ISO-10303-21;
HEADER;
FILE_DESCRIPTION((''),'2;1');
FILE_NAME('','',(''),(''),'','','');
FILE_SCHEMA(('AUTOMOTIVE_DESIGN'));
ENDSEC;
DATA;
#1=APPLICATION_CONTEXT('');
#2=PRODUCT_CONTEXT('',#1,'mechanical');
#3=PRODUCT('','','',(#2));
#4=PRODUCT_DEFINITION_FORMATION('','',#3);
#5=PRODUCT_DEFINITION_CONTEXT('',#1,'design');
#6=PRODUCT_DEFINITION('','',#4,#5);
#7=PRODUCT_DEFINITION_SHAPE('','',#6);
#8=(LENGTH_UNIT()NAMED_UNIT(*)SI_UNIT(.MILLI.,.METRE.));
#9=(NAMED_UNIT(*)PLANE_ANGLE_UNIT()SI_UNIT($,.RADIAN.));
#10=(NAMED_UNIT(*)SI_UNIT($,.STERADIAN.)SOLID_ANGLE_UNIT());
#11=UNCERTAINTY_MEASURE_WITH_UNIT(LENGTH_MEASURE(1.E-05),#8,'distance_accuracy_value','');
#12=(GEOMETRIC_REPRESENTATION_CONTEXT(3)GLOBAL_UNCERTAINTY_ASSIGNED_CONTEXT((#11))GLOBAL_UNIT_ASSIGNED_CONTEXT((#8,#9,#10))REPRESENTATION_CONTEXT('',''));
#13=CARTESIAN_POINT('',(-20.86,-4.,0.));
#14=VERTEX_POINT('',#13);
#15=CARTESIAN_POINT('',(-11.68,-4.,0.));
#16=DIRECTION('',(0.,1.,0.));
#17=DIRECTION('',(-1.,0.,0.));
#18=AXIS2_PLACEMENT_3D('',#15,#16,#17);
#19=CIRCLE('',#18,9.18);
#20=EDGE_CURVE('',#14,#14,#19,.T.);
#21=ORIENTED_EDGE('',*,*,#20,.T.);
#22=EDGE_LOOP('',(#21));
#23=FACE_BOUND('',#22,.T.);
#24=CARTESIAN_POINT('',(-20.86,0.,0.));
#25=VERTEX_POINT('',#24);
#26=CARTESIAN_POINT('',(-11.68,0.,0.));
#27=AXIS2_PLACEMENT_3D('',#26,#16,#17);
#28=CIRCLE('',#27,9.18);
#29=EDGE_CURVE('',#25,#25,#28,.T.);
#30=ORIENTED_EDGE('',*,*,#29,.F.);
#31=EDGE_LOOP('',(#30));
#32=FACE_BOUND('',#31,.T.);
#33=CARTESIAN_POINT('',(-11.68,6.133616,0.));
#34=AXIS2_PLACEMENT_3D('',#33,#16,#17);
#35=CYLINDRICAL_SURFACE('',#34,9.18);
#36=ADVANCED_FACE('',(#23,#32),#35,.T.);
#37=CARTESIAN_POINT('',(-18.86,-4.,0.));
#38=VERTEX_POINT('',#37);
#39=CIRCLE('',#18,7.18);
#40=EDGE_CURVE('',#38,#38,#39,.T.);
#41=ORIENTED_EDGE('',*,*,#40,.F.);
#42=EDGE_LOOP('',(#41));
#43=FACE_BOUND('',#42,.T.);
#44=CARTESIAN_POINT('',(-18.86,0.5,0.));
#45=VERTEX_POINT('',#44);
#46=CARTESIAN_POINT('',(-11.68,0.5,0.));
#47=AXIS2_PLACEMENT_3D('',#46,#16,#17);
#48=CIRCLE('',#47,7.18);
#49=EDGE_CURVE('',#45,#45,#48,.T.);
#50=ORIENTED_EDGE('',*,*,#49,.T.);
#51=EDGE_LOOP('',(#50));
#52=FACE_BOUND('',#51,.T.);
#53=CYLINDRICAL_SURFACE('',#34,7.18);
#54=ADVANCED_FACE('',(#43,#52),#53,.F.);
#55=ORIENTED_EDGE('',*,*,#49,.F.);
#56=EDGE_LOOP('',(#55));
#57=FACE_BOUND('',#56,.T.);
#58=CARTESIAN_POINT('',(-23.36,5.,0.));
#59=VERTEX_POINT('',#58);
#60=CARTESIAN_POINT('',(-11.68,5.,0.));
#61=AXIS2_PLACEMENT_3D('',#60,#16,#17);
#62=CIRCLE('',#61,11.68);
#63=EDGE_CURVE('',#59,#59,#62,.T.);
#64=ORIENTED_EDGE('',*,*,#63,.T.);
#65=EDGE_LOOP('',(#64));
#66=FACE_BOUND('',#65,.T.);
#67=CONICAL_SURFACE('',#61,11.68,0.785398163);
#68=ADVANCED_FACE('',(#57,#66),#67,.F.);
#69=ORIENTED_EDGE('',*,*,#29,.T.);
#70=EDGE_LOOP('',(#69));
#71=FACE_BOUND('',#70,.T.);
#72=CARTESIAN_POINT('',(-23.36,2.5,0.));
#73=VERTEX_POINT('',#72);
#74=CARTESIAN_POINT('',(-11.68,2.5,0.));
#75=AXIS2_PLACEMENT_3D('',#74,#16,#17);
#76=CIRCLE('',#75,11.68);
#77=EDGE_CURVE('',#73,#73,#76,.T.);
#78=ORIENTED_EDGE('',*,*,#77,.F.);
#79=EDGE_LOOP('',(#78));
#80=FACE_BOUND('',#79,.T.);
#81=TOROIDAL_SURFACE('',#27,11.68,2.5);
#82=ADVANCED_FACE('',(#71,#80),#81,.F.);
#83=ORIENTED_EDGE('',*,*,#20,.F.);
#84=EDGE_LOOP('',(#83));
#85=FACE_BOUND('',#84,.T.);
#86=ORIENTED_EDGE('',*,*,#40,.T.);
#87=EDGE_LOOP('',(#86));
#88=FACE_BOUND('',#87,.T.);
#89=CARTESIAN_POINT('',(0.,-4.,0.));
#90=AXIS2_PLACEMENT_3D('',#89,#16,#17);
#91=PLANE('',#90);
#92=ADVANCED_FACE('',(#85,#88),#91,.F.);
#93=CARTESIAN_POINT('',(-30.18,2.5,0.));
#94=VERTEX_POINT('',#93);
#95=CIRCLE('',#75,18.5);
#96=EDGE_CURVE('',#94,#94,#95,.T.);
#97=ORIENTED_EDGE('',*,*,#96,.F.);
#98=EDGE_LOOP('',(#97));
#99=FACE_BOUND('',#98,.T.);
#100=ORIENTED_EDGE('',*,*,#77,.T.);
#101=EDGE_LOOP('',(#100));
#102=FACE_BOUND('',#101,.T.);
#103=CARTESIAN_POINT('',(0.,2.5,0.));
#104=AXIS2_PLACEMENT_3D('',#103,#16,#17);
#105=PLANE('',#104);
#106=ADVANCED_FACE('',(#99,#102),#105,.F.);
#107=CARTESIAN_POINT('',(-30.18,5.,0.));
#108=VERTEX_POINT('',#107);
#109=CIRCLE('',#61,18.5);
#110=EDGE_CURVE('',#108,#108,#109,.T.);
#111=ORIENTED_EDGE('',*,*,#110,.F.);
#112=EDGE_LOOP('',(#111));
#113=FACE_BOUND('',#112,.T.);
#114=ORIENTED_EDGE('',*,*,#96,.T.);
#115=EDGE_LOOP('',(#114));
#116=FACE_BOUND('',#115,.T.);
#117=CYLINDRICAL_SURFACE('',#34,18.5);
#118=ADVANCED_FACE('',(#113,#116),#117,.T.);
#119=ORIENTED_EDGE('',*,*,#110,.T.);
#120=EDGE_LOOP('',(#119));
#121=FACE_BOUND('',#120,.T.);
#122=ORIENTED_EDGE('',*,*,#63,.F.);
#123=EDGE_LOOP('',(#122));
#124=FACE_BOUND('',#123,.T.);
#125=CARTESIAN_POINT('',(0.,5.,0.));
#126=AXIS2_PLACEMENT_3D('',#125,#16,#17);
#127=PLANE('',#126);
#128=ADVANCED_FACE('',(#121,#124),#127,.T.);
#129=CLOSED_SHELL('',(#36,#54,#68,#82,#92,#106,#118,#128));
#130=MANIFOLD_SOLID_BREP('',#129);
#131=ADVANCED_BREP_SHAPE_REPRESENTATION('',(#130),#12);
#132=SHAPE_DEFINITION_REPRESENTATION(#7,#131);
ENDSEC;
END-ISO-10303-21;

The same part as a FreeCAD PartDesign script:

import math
import FreeCAD as App
import Part
import Sketcher

V = App.Vector
Q = App.Units.Quantity

doc = App.newDocument("Part")
params = doc.addObject("Spreadsheet::Sheet", "Params")
for row, (alias, value) in enumerate([
    ("sketch1_radius", "2.5 mm"),
    ("sketch1_width", "2 mm"),
    ("sketch1_height", "4 mm"),
    ("sketch1_height2", "9 mm"),
    ("sketch1_width2", "6.82 mm"),
    ("revolution_angle", "360 deg"),
], start=1):
    params.set(f"A{row}", alias)
    params.set(f"B{row}", "=" + value)
    params.setAlias(f"B{row}", alias)

body = doc.addObject("PartDesign::Body", "Body")

sketch1 = doc.addObject("Sketcher::SketchObject", "Sketch")
body.addObject(sketch1)
sketch1.AttachmentSupport = (doc.XY_Plane, [""])
sketch1.MapMode = "FlatFace"
sketch1.addGeometry([
    Part.LineSegment(V(6.8, 5, 0), V(0, 5, 0)),
    Part.LineSegment(V(0, 5, 0), V(-4.5, 0.5, 0)),
    Part.LineSegment(V(-4.5, 0.5, 0), V(-4.5, -4, 0)),
    Part.LineSegment(V(-4.5, -4, 0), V(-2.5, -4, 0)),
    Part.LineSegment(V(-2.5, -4, 0), V(-2.5, 0, 0)),
    Part.ArcOfCircle(Part.Circle(V(0, 0, 0), V(0, 0, 1), 2.5), math.radians(90), math.radians(180)),
    Part.LineSegment(V(0, 2.5, 0), V(6.8, 2.5, 0)),
    Part.LineSegment(V(6.8, 2.5, 0), V(6.8, 5, 0)),
], False)
sketch1.addGeometry(Part.LineSegment(V(-11.7, 5, 0), V(-11.7, -4, 0)), True)
sketch1.addConstraint([
    Sketcher.Constraint("Coincident", 0, 2, 1, 1),
    Sketcher.Constraint("Coincident", 1, 2, 2, 1),
    Sketcher.Constraint("Coincident", 2, 2, 3, 1),
    Sketcher.Constraint("Coincident", 3, 2, 4, 1),
    Sketcher.Constraint("Tangent", 4, 2, 5, 2),
    Sketcher.Constraint("Tangent", 5, 1, 6, 1),
    Sketcher.Constraint("Coincident", 6, 2, 7, 1),
    Sketcher.Constraint("Coincident", 7, 2, 0, 1),
    Sketcher.Constraint("Horizontal", 0),
    Sketcher.Constraint("Vertical", 2),
    Sketcher.Constraint("Horizontal", 3),
    Sketcher.Constraint("Vertical", 4),
    Sketcher.Constraint("Horizontal", 6),
    Sketcher.Constraint("Vertical", 7),
    Sketcher.Constraint("Vertical", 8),
    Sketcher.Constraint("Coincident", 5, 3, -1, 1),
    Sketcher.Constraint("PointOnObject", 0, 2, -2),
    Sketcher.Constraint("Horizontal", 7, 2, 8, 1),
    Sketcher.Constraint("Horizontal", 3, 2, 8, 2),
    Sketcher.Constraint("Radius", 5, Q("2.5 mm")),
    Sketcher.Constraint("DistanceX", 3, 1, 3, 2, Q("2 mm")),
    Sketcher.Constraint("DistanceY", 4, 1, 4, 2, Q("4 mm")),
    Sketcher.Constraint("DistanceY", 8, 2, 8, 1, Q("9 mm")),
    Sketcher.Constraint("Angle", 1, Q("-135 deg")),
    Sketcher.Constraint("DistanceX", 0, 2, 0, 1, Q("6.82 mm")),
    Sketcher.Constraint("DistanceX", 8, 1, -1, 1, Q("11.68 mm")),
])
sketch1.setExpression("Constraints[19]", "Params.sketch1_radius")
sketch1.setExpression("Constraints[20]", "Params.sketch1_width")
sketch1.setExpression("Constraints[21]", "Params.sketch1_height")
sketch1.setExpression("Constraints[22]", "Params.sketch1_height2")
sketch1.setExpression("Constraints[24]", "Params.sketch1_width2")
revolution = doc.addObject("PartDesign::Revolution", "Revolution")
body.addObject(revolution)
revolution.Profile = sketch1
revolution.ReferenceAxis = (sketch1, ["Axis0"])
revolution.setExpression("Angle", "Params.revolution_angle")

doc.recompute()
